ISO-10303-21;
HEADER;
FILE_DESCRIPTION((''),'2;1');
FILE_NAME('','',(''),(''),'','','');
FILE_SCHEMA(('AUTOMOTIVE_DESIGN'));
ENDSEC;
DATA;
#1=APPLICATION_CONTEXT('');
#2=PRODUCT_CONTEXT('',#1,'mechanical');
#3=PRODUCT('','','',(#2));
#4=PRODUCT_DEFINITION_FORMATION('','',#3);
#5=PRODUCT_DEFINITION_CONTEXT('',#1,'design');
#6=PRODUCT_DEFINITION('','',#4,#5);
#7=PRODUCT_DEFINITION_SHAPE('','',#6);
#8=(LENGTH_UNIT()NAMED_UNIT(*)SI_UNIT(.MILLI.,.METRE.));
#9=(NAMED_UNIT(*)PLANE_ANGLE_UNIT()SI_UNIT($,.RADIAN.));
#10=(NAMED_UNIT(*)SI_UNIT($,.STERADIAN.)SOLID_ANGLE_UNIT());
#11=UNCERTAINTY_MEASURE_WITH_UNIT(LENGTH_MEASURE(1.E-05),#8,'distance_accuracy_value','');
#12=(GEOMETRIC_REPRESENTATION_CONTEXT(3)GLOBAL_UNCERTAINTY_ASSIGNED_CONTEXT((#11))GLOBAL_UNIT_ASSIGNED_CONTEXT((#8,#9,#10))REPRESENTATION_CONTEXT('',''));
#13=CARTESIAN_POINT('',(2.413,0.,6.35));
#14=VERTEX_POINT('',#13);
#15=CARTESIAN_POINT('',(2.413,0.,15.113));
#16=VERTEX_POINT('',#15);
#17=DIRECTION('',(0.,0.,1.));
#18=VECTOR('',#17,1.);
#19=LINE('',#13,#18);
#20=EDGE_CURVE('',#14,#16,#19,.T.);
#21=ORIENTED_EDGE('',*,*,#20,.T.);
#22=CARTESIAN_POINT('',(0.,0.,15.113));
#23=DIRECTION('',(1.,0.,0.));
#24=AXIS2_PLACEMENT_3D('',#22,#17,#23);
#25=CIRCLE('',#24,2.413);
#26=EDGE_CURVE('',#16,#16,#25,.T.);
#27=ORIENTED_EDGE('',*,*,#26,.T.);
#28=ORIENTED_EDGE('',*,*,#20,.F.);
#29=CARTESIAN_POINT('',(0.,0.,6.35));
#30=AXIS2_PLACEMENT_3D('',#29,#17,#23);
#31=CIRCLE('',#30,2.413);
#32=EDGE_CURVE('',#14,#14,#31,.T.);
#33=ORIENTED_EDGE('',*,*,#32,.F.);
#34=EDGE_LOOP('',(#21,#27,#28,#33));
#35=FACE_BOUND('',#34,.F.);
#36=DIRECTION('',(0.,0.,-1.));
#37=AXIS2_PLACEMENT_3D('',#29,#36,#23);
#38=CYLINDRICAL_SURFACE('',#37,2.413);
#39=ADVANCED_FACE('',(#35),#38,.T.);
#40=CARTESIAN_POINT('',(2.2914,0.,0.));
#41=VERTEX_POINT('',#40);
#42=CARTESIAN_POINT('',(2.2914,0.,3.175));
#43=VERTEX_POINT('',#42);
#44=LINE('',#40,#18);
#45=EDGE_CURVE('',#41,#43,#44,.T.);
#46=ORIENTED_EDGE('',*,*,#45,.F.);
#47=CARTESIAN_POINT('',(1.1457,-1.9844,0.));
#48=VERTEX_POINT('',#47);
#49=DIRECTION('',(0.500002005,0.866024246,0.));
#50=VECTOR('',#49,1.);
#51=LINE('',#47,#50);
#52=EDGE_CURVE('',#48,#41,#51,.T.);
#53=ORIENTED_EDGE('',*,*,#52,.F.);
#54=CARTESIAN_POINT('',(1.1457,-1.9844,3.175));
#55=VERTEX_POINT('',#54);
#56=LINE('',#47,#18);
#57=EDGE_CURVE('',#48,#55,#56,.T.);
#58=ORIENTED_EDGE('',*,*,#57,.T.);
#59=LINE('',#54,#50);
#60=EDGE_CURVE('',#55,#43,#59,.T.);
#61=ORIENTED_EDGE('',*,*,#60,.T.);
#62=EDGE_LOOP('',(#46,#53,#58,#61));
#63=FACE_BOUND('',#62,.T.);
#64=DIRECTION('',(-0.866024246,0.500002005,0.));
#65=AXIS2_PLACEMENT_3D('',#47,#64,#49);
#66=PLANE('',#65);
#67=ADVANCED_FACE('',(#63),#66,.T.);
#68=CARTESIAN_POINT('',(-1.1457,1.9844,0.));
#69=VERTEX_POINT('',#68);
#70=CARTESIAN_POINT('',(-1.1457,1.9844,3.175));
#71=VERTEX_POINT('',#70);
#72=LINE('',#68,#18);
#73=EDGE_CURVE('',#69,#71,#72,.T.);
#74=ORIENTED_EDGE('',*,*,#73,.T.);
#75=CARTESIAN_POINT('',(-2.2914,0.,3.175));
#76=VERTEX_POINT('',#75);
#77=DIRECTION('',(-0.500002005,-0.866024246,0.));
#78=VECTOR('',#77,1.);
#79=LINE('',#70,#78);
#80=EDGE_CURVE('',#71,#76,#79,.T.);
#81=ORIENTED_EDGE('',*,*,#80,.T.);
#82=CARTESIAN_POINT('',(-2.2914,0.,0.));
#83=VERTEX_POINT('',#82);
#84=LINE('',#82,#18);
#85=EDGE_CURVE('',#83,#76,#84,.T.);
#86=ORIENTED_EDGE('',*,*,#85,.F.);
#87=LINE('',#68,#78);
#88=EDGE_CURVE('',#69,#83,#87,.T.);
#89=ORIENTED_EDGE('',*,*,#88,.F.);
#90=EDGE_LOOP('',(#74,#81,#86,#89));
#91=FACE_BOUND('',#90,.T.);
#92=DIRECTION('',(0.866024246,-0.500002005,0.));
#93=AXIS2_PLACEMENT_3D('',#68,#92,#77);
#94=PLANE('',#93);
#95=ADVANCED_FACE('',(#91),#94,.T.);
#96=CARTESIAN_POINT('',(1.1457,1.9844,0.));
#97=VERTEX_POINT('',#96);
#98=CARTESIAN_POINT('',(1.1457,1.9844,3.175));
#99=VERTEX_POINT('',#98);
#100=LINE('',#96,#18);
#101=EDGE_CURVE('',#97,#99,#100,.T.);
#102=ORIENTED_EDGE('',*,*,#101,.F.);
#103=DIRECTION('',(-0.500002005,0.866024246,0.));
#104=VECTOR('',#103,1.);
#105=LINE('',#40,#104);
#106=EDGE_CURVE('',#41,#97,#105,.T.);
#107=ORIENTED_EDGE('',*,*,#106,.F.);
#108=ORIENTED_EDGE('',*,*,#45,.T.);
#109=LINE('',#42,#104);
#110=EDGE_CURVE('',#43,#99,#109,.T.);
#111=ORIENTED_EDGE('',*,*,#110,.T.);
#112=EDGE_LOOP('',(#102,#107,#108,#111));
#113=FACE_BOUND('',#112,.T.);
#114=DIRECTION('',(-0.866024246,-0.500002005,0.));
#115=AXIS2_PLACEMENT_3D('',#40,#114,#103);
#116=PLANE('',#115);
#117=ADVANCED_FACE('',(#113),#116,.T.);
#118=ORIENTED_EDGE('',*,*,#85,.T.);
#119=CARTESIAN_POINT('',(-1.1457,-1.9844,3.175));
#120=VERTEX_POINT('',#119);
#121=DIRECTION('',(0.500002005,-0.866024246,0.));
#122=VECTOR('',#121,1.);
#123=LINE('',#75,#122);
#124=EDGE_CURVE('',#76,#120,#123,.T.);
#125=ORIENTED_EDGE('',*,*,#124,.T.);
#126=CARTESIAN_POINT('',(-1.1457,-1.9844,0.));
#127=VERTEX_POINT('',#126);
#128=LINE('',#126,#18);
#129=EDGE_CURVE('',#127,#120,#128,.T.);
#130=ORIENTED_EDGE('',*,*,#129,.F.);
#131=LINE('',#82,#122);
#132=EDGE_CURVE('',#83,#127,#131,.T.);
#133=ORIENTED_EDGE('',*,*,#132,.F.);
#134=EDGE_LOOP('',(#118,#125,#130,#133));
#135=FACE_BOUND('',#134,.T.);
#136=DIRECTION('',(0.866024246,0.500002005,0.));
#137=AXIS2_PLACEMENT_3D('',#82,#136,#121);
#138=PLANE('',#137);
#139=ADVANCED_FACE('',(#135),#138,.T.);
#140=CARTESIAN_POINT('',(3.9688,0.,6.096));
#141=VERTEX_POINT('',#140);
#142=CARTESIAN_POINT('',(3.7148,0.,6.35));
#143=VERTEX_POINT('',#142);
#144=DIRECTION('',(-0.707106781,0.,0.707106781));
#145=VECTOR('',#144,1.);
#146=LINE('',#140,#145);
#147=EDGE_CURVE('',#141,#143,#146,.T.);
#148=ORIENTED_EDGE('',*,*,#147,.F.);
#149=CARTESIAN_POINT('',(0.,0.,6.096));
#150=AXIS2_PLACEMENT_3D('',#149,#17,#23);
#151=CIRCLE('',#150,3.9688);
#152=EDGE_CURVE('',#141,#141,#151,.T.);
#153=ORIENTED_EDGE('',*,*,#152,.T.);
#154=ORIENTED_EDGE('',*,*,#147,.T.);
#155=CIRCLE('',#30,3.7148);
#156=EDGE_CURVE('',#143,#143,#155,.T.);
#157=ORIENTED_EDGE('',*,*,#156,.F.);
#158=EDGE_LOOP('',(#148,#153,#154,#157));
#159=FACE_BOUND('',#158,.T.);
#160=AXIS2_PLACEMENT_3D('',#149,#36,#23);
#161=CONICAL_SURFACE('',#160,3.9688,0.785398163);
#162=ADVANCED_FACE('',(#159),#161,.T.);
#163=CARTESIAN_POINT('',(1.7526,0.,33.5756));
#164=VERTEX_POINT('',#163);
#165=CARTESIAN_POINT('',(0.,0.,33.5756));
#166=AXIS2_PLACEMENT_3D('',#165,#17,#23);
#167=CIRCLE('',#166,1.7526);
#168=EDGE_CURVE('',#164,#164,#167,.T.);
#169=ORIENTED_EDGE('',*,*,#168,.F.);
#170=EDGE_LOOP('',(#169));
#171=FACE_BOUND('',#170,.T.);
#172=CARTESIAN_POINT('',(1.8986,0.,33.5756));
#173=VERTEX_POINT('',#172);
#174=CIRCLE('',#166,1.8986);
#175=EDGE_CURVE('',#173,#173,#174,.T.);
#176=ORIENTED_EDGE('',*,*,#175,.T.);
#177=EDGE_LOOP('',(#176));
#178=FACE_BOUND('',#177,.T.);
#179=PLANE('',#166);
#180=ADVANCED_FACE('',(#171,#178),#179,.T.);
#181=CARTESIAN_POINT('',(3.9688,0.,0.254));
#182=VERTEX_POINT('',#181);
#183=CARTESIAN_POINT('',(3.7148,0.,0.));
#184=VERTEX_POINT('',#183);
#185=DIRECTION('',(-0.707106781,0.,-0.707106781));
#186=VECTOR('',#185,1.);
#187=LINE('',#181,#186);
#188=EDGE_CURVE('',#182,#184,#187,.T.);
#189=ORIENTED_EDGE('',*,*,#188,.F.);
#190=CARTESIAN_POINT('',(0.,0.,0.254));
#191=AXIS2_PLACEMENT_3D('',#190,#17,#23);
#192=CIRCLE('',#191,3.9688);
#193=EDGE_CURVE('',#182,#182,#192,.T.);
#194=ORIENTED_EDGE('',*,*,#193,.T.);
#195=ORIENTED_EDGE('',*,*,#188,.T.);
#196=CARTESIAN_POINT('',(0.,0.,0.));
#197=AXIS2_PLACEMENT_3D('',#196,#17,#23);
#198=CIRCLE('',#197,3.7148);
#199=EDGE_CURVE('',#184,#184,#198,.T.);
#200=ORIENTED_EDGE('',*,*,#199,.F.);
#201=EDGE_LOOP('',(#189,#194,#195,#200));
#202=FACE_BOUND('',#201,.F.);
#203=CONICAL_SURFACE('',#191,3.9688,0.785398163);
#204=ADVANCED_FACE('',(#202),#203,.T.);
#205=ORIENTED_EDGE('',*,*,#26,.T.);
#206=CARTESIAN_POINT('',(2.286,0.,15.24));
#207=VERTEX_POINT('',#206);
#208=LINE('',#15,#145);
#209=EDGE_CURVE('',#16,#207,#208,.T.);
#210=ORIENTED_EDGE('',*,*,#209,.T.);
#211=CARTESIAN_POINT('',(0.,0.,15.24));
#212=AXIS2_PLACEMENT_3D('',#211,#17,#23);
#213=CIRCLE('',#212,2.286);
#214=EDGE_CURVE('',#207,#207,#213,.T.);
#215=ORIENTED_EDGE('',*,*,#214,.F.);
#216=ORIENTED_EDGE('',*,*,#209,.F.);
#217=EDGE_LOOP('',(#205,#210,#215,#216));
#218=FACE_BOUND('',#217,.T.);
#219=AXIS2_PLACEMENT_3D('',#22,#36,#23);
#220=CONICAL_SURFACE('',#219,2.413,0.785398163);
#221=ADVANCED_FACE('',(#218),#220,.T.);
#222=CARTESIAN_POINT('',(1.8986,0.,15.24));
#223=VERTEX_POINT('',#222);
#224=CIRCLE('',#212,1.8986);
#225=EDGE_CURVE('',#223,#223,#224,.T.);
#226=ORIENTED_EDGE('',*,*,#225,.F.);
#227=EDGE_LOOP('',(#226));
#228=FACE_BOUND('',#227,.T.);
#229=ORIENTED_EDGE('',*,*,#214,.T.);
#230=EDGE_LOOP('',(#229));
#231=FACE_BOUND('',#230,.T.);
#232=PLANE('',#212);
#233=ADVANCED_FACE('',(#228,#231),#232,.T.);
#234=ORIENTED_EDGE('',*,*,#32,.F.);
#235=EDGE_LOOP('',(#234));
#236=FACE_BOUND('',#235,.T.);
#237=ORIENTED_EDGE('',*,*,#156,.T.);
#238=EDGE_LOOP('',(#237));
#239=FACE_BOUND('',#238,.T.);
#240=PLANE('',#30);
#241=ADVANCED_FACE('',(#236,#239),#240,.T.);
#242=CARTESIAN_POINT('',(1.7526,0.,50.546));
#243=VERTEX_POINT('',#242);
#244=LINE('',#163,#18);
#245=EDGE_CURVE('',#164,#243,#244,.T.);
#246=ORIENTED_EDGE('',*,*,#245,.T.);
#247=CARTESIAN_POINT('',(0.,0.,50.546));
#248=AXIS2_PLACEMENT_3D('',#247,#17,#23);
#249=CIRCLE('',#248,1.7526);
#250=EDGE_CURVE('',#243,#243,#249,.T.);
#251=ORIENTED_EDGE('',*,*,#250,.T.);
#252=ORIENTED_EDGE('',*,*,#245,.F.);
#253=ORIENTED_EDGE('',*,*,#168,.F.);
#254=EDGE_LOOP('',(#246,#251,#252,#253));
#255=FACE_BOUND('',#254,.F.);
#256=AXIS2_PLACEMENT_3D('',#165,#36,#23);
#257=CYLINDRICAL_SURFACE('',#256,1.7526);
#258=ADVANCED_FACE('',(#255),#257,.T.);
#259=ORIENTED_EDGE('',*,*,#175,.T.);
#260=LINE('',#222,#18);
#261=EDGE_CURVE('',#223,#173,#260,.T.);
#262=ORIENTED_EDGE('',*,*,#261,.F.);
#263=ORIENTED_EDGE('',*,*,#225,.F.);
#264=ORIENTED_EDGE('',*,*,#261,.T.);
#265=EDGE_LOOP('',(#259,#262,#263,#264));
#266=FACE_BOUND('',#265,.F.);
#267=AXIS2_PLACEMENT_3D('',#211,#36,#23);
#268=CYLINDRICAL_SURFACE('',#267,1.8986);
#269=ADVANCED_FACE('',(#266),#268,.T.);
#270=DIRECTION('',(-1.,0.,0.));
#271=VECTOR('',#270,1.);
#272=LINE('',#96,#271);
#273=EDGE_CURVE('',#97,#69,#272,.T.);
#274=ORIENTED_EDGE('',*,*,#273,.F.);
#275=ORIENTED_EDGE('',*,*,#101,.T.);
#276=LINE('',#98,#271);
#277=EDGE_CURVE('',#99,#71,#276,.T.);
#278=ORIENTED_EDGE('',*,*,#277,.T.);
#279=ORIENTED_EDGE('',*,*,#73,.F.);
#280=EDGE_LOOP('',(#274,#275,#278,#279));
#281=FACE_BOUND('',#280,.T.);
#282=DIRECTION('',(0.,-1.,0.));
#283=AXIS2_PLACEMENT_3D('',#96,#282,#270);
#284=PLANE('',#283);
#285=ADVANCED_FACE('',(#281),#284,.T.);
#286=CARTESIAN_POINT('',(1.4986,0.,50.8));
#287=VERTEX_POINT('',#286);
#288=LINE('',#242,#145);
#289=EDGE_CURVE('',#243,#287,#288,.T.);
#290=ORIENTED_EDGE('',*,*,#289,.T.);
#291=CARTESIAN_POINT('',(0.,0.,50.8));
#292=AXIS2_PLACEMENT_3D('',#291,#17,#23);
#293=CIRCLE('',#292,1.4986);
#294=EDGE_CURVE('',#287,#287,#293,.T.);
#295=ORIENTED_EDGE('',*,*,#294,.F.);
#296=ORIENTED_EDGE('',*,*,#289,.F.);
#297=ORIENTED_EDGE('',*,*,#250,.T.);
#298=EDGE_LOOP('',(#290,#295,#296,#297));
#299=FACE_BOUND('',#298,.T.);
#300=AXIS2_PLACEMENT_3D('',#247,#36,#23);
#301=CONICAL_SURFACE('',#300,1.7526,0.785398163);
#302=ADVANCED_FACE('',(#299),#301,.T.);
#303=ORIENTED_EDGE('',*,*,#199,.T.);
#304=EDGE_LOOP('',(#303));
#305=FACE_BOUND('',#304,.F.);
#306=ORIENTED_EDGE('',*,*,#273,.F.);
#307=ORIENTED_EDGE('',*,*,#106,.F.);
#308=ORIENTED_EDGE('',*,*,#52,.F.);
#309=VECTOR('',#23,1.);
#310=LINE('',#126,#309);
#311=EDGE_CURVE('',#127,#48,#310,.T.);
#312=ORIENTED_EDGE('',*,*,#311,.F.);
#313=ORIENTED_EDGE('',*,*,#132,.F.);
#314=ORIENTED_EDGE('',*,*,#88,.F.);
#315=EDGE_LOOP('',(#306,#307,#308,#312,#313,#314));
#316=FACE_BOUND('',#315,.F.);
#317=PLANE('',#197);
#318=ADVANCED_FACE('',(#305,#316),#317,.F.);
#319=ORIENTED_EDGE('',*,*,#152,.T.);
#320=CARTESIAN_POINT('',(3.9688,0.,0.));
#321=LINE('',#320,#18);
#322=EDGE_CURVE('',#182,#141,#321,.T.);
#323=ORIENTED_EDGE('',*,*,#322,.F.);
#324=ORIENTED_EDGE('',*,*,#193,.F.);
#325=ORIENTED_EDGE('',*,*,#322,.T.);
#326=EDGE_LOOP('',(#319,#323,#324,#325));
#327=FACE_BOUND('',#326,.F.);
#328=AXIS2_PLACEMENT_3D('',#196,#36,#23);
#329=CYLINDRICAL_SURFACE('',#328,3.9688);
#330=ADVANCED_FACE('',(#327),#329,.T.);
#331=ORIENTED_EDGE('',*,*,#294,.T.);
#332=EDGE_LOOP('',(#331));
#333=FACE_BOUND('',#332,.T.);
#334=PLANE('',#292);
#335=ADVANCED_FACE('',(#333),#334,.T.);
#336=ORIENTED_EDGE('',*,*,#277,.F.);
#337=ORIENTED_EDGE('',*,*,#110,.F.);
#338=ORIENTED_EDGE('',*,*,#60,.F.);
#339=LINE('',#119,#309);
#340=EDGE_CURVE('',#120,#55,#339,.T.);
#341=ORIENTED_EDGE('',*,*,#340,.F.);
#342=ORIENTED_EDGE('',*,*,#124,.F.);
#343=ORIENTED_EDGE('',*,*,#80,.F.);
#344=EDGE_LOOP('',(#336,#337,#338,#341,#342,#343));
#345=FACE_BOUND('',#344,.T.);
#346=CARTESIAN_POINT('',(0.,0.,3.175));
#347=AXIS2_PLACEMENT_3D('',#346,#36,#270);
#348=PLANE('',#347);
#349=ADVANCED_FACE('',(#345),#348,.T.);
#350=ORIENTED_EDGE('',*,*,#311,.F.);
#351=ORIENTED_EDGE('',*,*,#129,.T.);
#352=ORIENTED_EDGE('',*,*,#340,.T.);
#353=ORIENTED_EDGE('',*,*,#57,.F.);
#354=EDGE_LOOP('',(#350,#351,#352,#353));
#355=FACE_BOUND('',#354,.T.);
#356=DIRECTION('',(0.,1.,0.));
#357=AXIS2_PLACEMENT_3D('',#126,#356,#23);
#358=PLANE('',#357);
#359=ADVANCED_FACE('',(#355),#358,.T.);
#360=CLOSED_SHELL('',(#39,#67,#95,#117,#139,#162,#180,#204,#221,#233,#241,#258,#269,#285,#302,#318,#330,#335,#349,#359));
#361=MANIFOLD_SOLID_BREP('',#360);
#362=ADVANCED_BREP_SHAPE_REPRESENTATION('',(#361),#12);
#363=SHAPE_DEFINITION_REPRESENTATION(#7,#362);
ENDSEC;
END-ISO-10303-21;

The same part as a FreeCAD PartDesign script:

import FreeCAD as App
import Part
import Sketcher

V = App.Vector
Q = App.Units.Quantity


def edges_at(feature, points):
    """Names of the edges that pass closest to the given points."""
    edges = feature.Shape.Edges
    near = lambda p: min(range(len(edges)), key=lambda i: edges[i].distToShape(Part.Vertex(*p))[0])
    return sorted({f"Edge{near(p) + 1}" for p in points})

doc = App.newDocument("Part")
body = doc.addObject("PartDesign::Body", "Body")

sketch1 = body.newObject("Sketcher::SketchObject", "Sketch")
sketch1.AttachmentSupport = (doc.getObject("XY_Plane"), [""])
sketch1.MapMode = "FlatFace"
sketch1.addGeometry(Part.Circle(V(0, 0, 0), V(0, 0, 1), 4), False)
sketch1.addConstraint(Sketcher.Constraint("Coincident", 0, 3, -1, 1))
sketch1.addConstraint(Sketcher.Constraint("Diameter", 0, Q("0.3125 in")))
pad1 = body.newObject("PartDesign::Pad", "Pad")
pad1.Profile = sketch1
pad1.Length = Q("0.25 in")

sketch2 = body.newObject("Sketcher::SketchObject", "Sketch001")
sketch2.AttachmentSupport = (doc.getObject("XY_Plane"), [""])
sketch2.MapMode = "FlatFace"
sketch2.AttachmentOffset = App.Placement(V(0, 0, 0.25 * 25.4), App.Rotation())
sketch2.addGeometry(Part.Circle(V(0, 0, 0), V(0, 0, 1), 2.4), False)
sketch2.addConstraint(Sketcher.Constraint("Coincident", 0, 3, -1, 1))
sketch2.addConstraint(Sketcher.Constraint("Diameter", 0, Q("0.19 in")))
pad2 = body.newObject("PartDesign::Pad", "Pad001")
pad2.Profile = sketch2
pad2.Length = Q("0.35 in")

sketch3 = body.newObject("Sketcher::SketchObject", "Sketch002")
sketch3.AttachmentSupport = (doc.getObject("XY_Plane"), [""])
sketch3.MapMode = "FlatFace"
sketch3.AttachmentOffset = App.Placement(V(0, 0, 0.6 * 25.4), App.Rotation())
sketch3.addGeometry(Part.Circle(V(0, 0, 0), V(0, 0, 1), 1.9), False)
sketch3.addConstraint(Sketcher.Constraint("Coincident", 0, 3, -1, 1))
sketch3.addConstraint(Sketcher.Constraint("Diameter", 0, Q("0.1495 in")))
pad3 = body.newObject("PartDesign::Pad", "Pad002")
pad3.Profile = sketch3
pad3.Length = 18.3356

sketch4 = body.newObject("Sketcher::SketchObject", "Sketch003")
sketch4.AttachmentSupport = (doc.getObject("XY_Plane"), [""])
sketch4.MapMode = "FlatFace"
sketch4.addGeometry(Part.LineSegment(V(1.1, 2, 0), V(2.3, 0, 0)), False)
sketch4.addGeometry(Part.LineSegment(V(2.3, 0, 0), V(1.1, -2, 0)), False)
sketch4.addGeometry(Part.LineSegment(V(1.1, -2, 0), V(-1.1, -2, 0)), False)
sketch4.addGeometry(Part.LineSegment(V(-1.1, -2, 0), V(-2.3, 0, 0)), False)
sketch4.addGeometry(Part.LineSegment(V(-2.3, 0, 0), V(-1.1, 2, 0)), False)
sketch4.addGeometry(Part.LineSegment(V(-1.1, 2, 0), V(1.1, 2, 0)), False)
sketch4.addConstraint(Sketcher.Constraint("Coincident", 0, 2, 1, 1))
sketch4.addConstraint(Sketcher.Constraint("Coincident", 1, 2, 2, 1))
sketch4.addConstraint(Sketcher.Constraint("Coincident", 2, 2, 3, 1))
sketch4.addConstraint(Sketcher.Constraint("Coincident", 3, 2, 4, 1))
sketch4.addConstraint(Sketcher.Constraint("Coincident", 4, 2, 5, 1))
sketch4.addConstraint(Sketcher.Constraint("Coincident", 5, 2, 0, 1))
sketch4.addConstraint(Sketcher.Constraint("Horizontal", 2))
sketch4.addConstraint(Sketcher.Constraint("Horizontal", 5))
sketch4.addConstraint(Sketcher.Constraint("Symmetric", 0, 2, 3, 2, -1, 1))
sketch4.addConstraint(Sketcher.Constraint("Symmetric", 1, 2, 4, 2, -1, 1))
sketch4.addConstraint(Sketcher.Constraint("PointOnObject", 0, 2, -1))
sketch4.addConstraint(Sketcher.Constraint("Parallel", 0, 3))
sketch4.addConstraint(Sketcher.Constraint("Vertical", 2, 2, 4, 2))
sketch4.addConstraint(Sketcher.Constraint("Angle", 0, Q("-59.9999 deg")))
sketch4.addConstraint(Sketcher.Constraint("DistanceY", 2, 2, 4, 2, Q("0.156252 in")))
sketch4.addConstraint(Sketcher.Constraint("DistanceX", 2, 2, 2, 1, 2.2914))
pocket1 = body.newObject("PartDesign::Pocket", "Pocket")
pocket1.Profile = sketch4
pocket1.Length = Q("0.125 in")
pocket1.Reversed = True

sketch5 = body.newObject("Sketcher::SketchObject", "Sketch004")
sketch5.AttachmentSupport = (doc.getObject("XY_Plane"), [""])
sketch5.MapMode = "FlatFace"
sketch5.AttachmentOffset = App.Placement(V(0, 0, 33.5756), App.Rotation())
sketch5.addGeometry(Part.Circle(V(0, 0, 0), V(0, 0, 1), 1.8), False)
sketch5.addConstraint(Sketcher.Constraint("Coincident", 0, 3, -1, 1))
sketch5.addConstraint(Sketcher.Constraint("Diameter", 0, Q("0.138 in")))
pad4 = body.newObject("PartDesign::Pad", "Pad003")
pad4.Profile = sketch5
pad4.Length = 17.2244
doc.recompute()

chamfer = body.newObject("PartDesign::Chamfer", "Chamfer")
chamfer.Base = (pad4, edges_at(pad4, [(-3.969, 0, 0), (-3.969, 0, 6.35), (-1.753, 0, 50.8)]))
chamfer.Size = Q("0.01 in")
doc.recompute()

chamfer2 = body.newObject("PartDesign::Chamfer", "Chamfer001")
chamfer2.Base = (chamfer, edges_at(chamfer, [(-2.413, 0, 15.24)]))
chamfer2.Size = Q("0.005 in")

doc.recompute()
